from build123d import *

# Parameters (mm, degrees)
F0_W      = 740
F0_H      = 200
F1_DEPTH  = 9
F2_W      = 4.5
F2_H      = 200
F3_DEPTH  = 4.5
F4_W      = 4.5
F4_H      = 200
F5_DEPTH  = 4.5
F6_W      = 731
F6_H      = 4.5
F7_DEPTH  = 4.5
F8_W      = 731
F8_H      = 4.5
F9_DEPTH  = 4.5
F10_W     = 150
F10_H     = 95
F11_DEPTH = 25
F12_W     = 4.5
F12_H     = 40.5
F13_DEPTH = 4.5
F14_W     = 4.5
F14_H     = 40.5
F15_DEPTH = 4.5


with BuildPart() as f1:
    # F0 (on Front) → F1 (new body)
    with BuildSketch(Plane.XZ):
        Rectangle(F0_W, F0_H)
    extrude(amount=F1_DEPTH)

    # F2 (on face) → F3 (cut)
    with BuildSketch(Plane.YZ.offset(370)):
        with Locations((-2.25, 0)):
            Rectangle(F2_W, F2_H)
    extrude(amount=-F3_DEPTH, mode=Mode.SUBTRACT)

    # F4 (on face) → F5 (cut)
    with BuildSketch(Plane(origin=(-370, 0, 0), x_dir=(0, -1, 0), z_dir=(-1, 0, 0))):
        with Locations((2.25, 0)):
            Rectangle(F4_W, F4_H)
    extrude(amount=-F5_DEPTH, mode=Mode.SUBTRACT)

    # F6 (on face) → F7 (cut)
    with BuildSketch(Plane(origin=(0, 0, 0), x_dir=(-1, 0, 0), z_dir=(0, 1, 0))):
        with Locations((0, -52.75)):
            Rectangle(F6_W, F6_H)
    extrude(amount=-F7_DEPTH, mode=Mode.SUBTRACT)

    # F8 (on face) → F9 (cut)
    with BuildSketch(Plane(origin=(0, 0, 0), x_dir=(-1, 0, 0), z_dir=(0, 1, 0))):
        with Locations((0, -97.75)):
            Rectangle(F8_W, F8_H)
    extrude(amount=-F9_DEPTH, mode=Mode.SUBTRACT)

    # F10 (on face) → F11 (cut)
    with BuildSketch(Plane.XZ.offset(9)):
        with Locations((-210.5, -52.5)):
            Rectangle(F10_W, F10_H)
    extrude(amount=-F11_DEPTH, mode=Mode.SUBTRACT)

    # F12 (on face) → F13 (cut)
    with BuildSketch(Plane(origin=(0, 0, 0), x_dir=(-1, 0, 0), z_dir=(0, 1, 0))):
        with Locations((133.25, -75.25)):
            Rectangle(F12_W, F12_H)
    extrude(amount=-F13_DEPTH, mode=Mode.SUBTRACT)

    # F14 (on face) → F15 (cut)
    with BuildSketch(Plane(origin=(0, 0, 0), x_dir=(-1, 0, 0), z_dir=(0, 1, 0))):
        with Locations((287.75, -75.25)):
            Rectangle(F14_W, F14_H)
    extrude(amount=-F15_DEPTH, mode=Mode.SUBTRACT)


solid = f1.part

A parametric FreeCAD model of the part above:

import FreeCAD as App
import Part
import Sketcher
from FreeCAD import Vector


def add_polygon(sketch, points):
    """Adds a closed chain of lines whose ends are joined by coincident constraints."""
    first, n = sketch.GeometryCount, len(points)
    for a, b in zip(points, points[1:] + points[:1]):
        sketch.addGeometry(Part.LineSegment(App.Vector(*a, 0), App.Vector(*b, 0)), False)
    for i in range(n):
        sketch.addConstraint(Sketcher.Constraint("Coincident", first + i, 2, first + (i + 1) % n, 1))

doc = App.newDocument("Part")
body = doc.addObject("PartDesign::Body", "Body")

# Sketch on XZ plane
sketch1 = body.newObject("Sketcher::SketchObject", "Sketch")
sketch1.AttachmentSupport = (doc.getObject("XZ_Plane"), [""])
sketch1.MapMode = "FlatFace"
add_polygon(sketch1, [(-370, 100), (-370, -100), (370, -100), (370, 100)])  # lines 0-3
sketch1.addConstraint([
    Sketcher.Constraint("Vertical", 0),
    Sketcher.Constraint("Horizontal", 1),
    Sketcher.Constraint("Vertical", 2),
    Sketcher.Constraint("Horizontal", 3),
    Sketcher.Constraint("Symmetric", 0, 2, 2, 2, -1, 1),
    Sketcher.Constraint("DistanceX", 1, 1, 1, 2, 740.0),
    Sketcher.Constraint("DistanceY", 0, 2, 0, 1, 200.0),
])
pad1 = body.newObject("PartDesign::Pad", "Pad")
pad1.Profile = sketch1
pad1.Length = 9

# Sketch on YZ plane
sketch2 = body.newObject("Sketcher::SketchObject", "Sketch001")
sketch2.AttachmentSupport = (doc.getObject("YZ_Plane"), [""])
sketch2.MapMode = "FlatFace"
sketch2.AttachmentOffset = App.Placement(Vector(0, 0, 370), App.Rotation())
add_polygon(sketch2, [(-4.5, 100), (-4.5, -100), (0, -100), (0, 100)])  # lines 0-3
sketch2.addConstraint([
    Sketcher.Constraint("Vertical", 0),
    Sketcher.Constraint("Horizontal", 1),
    Sketcher.Constraint("Vertical", 2),
    Sketcher.Constraint("Horizontal", 3),
    Sketcher.Constraint("Symmetric", 1, 2, 2, 2, -1, 1),
    Sketcher.Constraint("DistanceY", 0, 2, 0, 1, 200.0),
    Sketcher.Constraint("DistanceX", 1, 1, 1, 2, 4.5),
])
pocket1 = body.newObject("PartDesign::Pocket", "Pocket")
pocket1.Profile = sketch2
pocket1.Length = 4.5

# Sketch on YZ plane
sketch3 = body.newObject("Sketcher::SketchObject", "Sketch002")
sketch3.AttachmentSupport = (doc.getObject("YZ_Plane"), [""])
sketch3.MapMode = "FlatFace"
sketch3.AttachmentOffset = App.Placement(Vector(0, 0, -370), App.Rotation())
add_polygon(sketch3, [(0, 100), (0, -100), (-4.5, -100), (-4.5, 100)])  # lines 0-3
sketch3.addConstraint([
    Sketcher.Constraint("Vertical", 0),
    Sketcher.Constraint("Horizontal", 1),
    Sketcher.Constraint("Vertical", 2),
    Sketcher.Constraint("Horizontal", 3),
    Sketcher.Constraint("Symmetric", 0, 2, 3, 2, -1, 1),
    Sketcher.Constraint("DistanceY", 0, 2, 0, 1, 200.0),
    Sketcher.Constraint("DistanceX", 1, 2, 1, 1, 4.5),
])
pocket2 = body.newObject("PartDesign::Pocket", "Pocket001")
pocket2.Profile = sketch3
pocket2.Length = 4.5
pocket2.Reversed = True

# Sketch on XZ plane
sketch4 = body.newObject("Sketcher::SketchObject", "Sketch003")
sketch4.AttachmentSupport = (doc.getObject("XZ_Plane"), [""])
sketch4.MapMode = "FlatFace"
add_polygon(sketch4, [(365.5, -50.5), (365.5, -55), (-365.5, -55), (-365.5, -50.5)])  # lines 0-3
sketch4.addConstraint([
    Sketcher.Constraint("Vertical", 0),
    Sketcher.Constraint("Horizontal", 1),
    Sketcher.Constraint("Vertical", 2),
    Sketcher.Constraint("Horizontal", 3),
    Sketcher.Constraint("DistanceX", 1, 2, 1, 1, 731.0),
    Sketcher.Constraint("DistanceY", 0, 2, 0, 1, 4.5),
    Sketcher.Constraint("DistanceY", 0, 2, -1, 1, 55.0),
    Sketcher.Constraint("DistanceX", -1, 1, 0, 2, 365.5),
])
pocket3 = body.newObject("PartDesign::Pocket", "Pocket002")
pocket3.Profile = sketch4
pocket3.Length = 4.5
pocket3.Reversed = True

# Sketch on XZ plane
sketch5 = body.newObject("Sketcher::SketchObject", "Sketch004")
sketch5.AttachmentSupport = (doc.getObject("XZ_Plane"), [""])
sketch5.MapMode = "FlatFace"
add_polygon(sketch5, [(365.5, -95.5), (365.5, -100), (-365.5, -100), (-365.5, -95.5)])  # lines 0-3
sketch5.addConstraint([
    Sketcher.Constraint("Vertical", 0),
    Sketcher.Constraint("Horizontal", 1),
    Sketcher.Constraint("Vertical", 2),
    Sketcher.Constraint("Horizontal", 3),
    Sketcher.Constraint("DistanceX", 1, 2, 1, 1, 731.0),
    Sketcher.Constraint("DistanceY", 0, 2, 0, 1, 4.5),
    Sketcher.Constraint("DistanceY", 0, 2, -1, 1, 100.0),
    Sketcher.Constraint("DistanceX", -1, 1, 0, 2, 365.5),
])
pocket4 = body.newObject("PartDesign::Pocket", "Pocket003")
pocket4.Profile = sketch5
pocket4.Length = 4.5
pocket4.Reversed = True

# Sketch on XZ plane
sketch6 = body.newObject("Sketcher::SketchObject", "Sketch005")
sketch6.AttachmentSupport = (doc.getObject("XZ_Plane"), [""])
sketch6.MapMode = "FlatFace"
sketch6.AttachmentOffset = App.Placement(Vector(0, 0, 9), App.Rotation())
add_polygon(sketch6, [(-285.5, -5), (-285.5, -100), (-135.5, -100), (-135.5, -5)])  # lines 0-3
sketch6.addConstraint([
    Sketcher.Constraint("Vertical", 0),
    Sketcher.Constraint("Horizontal", 1),
    Sketcher.Constraint("Vertical", 2),
    Sketcher.Constraint("Horizontal", 3),
    Sketcher.Constraint("DistanceX", 1, 1, 1, 2, 150.0),
    Sketcher.Constraint("DistanceY", 0, 2, 0, 1, 95.0),
    Sketcher.Constraint("DistanceY", 0, 2, -1, 1, 100.0),
    Sketcher.Constraint("DistanceX", 0, 2, -1, 1, 285.5),
])
pocket5 = body.newObject("PartDesign::Pocket", "Pocket004")
pocket5.Profile = sketch6
pocket5.Length = 25

# Sketch on XZ plane
sketch7 = body.newObject("Sketcher::SketchObject", "Sketch006")
sketch7.AttachmentSupport = (doc.getObject("XZ_Plane"), [""])
sketch7.MapMode = "FlatFace"
add_polygon(sketch7, [(-131, -55), (-131, -95.5), (-135.5, -95.5), (-135.5, -55)])  # lines 0-3
sketch7.addConstraint([
    Sketcher.Constraint("Vertical", 0),
    Sketcher.Constraint("Horizontal", 1),
    Sketcher.Constraint("Vertical", 2),
    Sketcher.Constraint("Horizontal", 3),
    Sketcher.Constraint("DistanceX", 1, 2, 1, 1, 4.5),
    Sketcher.Constraint("DistanceY", 0, 2, 0, 1, 40.5),
    Sketcher.Constraint("DistanceX", 0, 2, -1, 1, 131.0),
    Sketcher.Constraint("DistanceY", 2, 2, -1, 1, 55.0),
])
pocket6 = body.newObject("PartDesign::Pocket", "Pocket005")
pocket6.Profile = sketch7
pocket6.Length = 4.5
pocket6.Reversed = True

# Sketch on XZ plane
sketch8 = body.newObject("Sketcher::SketchObject", "Sketch007")
sketch8.AttachmentSupport = (doc.getObject("XZ_Plane"), [""])
sketch8.MapMode = "FlatFace"
add_polygon(sketch8, [(-285.5, -55), (-285.5, -95.5), (-290, -95.5), (-290, -55)])  # lines 0-3
sketch8.addConstraint([
    Sketcher.Constraint("Vertical", 0),
    Sketcher.Constraint("Horizontal", 1),
    Sketcher.Constraint("Vertical", 2),
    Sketcher.Constraint("Horizontal", 3),
    Sketcher.Constraint("DistanceX", 1, 2, 1, 1, 4.5),
    Sketcher.Constraint("DistanceY", 0, 2, 0, 1, 40.5),
    Sketcher.Constraint("DistanceX", 1, 2, -1, 1, 290.0),
    Sketcher.Constraint("DistanceY", 2, 2, -1, 1, 55.0),
])
pocket7 = body.newObject("PartDesign::Pocket", "Pocket006")
pocket7.Profile = sketch8
pocket7.Length = 4.5
pocket7.Reversed = True

doc.recompute()
